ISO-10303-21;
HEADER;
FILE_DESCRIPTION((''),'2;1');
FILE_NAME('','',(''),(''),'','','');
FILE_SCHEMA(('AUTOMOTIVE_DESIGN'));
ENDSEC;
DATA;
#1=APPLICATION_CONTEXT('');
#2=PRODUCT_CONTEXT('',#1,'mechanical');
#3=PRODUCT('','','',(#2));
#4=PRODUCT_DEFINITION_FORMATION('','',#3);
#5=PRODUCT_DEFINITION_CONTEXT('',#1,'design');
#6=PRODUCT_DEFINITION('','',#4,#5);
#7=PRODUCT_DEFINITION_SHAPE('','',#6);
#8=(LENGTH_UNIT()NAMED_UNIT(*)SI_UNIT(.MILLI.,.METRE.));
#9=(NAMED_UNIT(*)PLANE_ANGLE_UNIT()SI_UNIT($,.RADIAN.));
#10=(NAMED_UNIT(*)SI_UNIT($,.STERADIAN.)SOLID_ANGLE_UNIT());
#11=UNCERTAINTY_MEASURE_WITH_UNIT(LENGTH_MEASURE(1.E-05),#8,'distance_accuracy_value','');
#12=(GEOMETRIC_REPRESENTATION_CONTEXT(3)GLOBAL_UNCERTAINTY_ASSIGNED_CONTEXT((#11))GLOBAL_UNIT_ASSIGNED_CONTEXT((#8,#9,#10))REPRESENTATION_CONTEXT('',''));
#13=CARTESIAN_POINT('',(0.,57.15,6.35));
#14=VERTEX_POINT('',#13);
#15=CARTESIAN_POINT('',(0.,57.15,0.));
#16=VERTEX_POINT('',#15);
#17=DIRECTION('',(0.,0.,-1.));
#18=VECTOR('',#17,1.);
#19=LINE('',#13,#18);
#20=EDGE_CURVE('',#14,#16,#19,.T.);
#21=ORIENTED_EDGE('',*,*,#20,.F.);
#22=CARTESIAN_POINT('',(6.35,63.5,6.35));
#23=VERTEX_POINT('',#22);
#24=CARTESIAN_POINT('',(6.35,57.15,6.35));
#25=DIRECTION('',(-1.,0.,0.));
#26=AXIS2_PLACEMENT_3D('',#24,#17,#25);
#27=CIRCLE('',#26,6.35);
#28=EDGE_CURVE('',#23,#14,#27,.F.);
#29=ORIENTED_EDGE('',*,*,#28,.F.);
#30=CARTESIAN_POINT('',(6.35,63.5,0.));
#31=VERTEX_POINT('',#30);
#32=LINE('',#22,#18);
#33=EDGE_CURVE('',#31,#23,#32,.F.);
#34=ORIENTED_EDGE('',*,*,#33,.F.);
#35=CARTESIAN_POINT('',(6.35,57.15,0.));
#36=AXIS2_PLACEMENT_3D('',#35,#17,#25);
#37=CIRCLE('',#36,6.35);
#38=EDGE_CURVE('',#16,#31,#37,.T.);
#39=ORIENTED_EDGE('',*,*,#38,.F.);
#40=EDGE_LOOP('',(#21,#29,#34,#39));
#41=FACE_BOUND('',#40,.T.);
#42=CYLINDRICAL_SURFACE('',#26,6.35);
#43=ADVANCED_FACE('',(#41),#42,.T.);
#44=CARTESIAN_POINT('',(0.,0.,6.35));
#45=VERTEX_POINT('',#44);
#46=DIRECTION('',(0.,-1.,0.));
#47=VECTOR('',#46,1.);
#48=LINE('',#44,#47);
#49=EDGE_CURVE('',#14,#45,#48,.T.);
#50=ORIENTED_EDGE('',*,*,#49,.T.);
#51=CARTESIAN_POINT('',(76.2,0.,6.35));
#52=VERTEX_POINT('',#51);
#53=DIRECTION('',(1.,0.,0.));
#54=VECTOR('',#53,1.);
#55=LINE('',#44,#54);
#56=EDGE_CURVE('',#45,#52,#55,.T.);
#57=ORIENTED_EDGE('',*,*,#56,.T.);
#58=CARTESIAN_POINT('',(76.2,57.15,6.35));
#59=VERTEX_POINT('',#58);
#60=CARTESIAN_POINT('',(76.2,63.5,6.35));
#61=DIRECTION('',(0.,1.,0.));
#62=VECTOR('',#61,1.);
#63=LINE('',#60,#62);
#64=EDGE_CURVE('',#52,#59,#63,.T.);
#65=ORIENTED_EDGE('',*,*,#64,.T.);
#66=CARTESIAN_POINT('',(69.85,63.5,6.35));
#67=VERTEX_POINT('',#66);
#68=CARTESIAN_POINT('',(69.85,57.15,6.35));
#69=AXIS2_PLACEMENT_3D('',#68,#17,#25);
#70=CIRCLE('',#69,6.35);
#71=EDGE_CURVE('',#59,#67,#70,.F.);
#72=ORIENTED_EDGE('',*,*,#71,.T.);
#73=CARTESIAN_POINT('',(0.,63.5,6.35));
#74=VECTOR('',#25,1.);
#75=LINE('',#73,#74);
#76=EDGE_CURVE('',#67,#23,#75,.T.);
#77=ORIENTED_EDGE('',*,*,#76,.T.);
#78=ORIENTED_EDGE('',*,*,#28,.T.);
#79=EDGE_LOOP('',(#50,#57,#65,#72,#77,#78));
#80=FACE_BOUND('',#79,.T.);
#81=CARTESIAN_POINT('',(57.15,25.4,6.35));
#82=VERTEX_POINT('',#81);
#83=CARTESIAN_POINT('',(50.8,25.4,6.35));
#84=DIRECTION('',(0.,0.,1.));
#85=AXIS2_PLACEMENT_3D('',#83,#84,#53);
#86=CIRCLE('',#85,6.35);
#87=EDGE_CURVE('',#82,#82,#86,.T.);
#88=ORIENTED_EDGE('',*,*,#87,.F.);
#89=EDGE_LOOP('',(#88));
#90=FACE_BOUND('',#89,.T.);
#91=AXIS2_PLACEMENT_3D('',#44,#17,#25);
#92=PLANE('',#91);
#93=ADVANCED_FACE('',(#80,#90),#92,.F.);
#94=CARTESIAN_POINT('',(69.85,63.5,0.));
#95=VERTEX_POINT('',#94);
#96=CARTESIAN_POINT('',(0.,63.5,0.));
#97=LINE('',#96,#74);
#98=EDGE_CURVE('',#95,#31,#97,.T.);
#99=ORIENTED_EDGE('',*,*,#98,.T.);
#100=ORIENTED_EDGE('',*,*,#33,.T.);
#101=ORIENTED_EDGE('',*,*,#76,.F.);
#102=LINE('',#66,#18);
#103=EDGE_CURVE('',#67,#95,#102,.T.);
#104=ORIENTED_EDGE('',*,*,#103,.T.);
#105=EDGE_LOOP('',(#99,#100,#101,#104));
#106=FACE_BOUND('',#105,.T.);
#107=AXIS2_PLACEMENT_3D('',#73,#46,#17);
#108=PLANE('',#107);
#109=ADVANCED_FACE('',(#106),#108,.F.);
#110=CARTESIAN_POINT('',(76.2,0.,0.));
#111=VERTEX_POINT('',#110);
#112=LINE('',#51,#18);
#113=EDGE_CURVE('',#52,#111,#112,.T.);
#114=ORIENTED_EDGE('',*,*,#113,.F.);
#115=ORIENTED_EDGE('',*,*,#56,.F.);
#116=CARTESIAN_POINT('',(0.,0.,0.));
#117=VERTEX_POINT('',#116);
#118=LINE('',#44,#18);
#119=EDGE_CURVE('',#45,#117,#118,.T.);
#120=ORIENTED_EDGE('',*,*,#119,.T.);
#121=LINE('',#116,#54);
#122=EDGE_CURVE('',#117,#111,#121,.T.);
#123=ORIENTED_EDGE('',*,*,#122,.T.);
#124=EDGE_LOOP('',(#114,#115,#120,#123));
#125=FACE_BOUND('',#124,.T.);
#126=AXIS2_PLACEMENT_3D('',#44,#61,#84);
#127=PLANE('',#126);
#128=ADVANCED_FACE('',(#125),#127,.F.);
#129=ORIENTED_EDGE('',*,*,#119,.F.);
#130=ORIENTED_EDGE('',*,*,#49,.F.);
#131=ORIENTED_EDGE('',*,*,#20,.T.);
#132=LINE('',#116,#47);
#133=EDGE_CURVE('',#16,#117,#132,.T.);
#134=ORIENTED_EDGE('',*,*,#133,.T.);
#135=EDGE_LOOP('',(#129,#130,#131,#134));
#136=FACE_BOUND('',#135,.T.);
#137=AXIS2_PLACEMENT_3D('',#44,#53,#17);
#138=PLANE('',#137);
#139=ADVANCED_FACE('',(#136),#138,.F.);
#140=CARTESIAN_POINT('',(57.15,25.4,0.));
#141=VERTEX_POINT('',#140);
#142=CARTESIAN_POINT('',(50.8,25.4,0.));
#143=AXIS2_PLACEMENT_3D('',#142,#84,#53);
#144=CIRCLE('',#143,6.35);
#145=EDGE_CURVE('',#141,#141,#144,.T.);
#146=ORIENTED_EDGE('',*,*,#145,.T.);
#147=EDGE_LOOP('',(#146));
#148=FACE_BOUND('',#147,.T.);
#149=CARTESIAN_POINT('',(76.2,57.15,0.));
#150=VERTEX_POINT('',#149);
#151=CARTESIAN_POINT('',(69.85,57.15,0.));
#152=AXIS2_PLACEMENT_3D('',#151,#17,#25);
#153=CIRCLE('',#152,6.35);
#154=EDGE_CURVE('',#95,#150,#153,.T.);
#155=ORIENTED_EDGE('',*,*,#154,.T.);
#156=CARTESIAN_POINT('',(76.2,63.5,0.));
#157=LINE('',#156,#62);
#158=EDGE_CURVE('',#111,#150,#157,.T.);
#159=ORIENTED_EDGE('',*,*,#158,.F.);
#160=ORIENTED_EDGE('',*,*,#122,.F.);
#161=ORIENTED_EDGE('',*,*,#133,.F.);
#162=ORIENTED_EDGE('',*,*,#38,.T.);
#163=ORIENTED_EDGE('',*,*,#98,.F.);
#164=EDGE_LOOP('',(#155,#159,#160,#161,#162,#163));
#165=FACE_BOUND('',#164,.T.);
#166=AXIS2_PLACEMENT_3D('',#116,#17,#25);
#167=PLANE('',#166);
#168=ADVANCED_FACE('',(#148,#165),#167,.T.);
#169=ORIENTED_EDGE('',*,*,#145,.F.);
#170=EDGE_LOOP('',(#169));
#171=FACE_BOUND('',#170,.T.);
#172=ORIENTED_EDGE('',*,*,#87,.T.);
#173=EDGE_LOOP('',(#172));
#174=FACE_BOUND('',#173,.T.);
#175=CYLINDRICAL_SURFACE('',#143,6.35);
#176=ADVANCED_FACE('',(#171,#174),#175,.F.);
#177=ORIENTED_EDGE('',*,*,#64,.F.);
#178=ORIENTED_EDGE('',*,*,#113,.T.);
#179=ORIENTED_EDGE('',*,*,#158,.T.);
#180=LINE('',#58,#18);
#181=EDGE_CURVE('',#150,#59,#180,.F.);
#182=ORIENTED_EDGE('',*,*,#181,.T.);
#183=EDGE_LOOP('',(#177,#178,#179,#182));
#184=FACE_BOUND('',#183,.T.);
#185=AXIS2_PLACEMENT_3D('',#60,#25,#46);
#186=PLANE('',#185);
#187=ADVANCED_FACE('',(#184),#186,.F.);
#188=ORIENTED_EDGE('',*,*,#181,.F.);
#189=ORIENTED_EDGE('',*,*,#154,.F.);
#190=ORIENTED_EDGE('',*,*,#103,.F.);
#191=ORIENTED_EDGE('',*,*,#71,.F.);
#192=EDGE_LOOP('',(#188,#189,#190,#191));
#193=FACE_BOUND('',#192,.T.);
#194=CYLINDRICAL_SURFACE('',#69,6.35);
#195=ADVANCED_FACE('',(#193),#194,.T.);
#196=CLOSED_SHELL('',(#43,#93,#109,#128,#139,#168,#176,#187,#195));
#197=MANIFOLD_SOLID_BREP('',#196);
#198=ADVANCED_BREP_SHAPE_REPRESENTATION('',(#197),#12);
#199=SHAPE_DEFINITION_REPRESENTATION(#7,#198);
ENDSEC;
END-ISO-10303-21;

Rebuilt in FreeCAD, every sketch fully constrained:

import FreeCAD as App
import Part
import Sketcher

V = App.Vector
Q = App.Units.Quantity


def edges_at(feature, points):
    """Names of the edges that pass closest to the given points."""
    edges = feature.Shape.Edges
    near = lambda p: min(range(len(edges)), key=lambda i: edges[i].distToShape(Part.Vertex(*p))[0])
    return sorted({f"Edge{near(p) + 1}" for p in points})


def add_polygon(sketch, points):
    """Adds a closed chain of lines whose ends are joined by coincident constraints."""
    first, n = sketch.GeometryCount, len(points)
    for a, b in zip(points, points[1:] + points[:1]):
        sketch.addGeometry(Part.LineSegment(App.Vector(*a, 0), App.Vector(*b, 0)), False)
    for i in range(n):
        sketch.addConstraint(Sketcher.Constraint("Coincident", first + i, 2, first + (i + 1) % n, 1))

doc = App.newDocument("Part")
body = doc.addObject("PartDesign::Body", "Body")

# Sketch on XY plane
sketch1 = doc.addObject("Sketcher::SketchObject", "Sketch")
body.addObject(sketch1)
sketch1.AttachmentSupport = (doc.XY_Plane, [""])
sketch1.MapMode = "FlatFace"
add_polygon(sketch1, [(0, 64), (0, 0), (76, 0), (76, 64)])  # lines 0-3
sketch1.addConstraint([
    Sketcher.Constraint("Vertical", 0),
    Sketcher.Constraint("Horizontal", 1),
    Sketcher.Constraint("Vertical", 2),
    Sketcher.Constraint("Horizontal", 3),
    Sketcher.Constraint("Coincident", 0, 2, -1, 1),
    Sketcher.Constraint("DistanceX", 1, 1, 1, 2, Q("3 in")),
    Sketcher.Constraint("DistanceY", 0, 2, 0, 1, Q("2.5 in")),
])
pad1 = doc.addObject("PartDesign::Pad", "Pad")
body.addObject(pad1)
pad1.Profile = sketch1
pad1.Length = Q("0.25 in")
doc.recompute()

fillet = doc.addObject("PartDesign::Fillet", "Fillet")
body.addObject(fillet)
fillet.Base = (pad1, edges_at(pad1, [(0, 63.5, 3.175)]))
fillet.Radius = Q("0.25 in")
doc.recompute()

fillet2 = doc.addObject("PartDesign::Fillet", "Fillet001")
body.addObject(fillet2)
fillet2.Base = (fillet, edges_at(fillet, [(76.2, 63.5, 3.175)]))
fillet2.Radius = Q("0.25 in")

# Sketch on XY plane
sketch2 = doc.addObject("Sketcher::SketchObject", "Sketch001")
body.addObject(sketch2)
sketch2.AttachmentSupport = (doc.XY_Plane, [""])
sketch2.MapMode = "FlatFace"
sketch2.AttachmentOffset = App.Placement(V(0, 0, 0.25 * 25.4), App.Rotation())
sketch2.addGeometry(Part.Circle(V(51, 25, 0), V(0, 0, 1), 6), False)
sketch2.addConstraint([
    Sketcher.Constraint("Diameter", 0, Q("0.5 in")),
    Sketcher.Constraint("DistanceX", -1, 1, 0, 3, Q("2 in")),
    Sketcher.Constraint("DistanceY", -1, 1, 0, 3, Q("1 in")),
])
pocket1 = doc.addObject("PartDesign::Pocket", "Pocket")
body.addObject(pocket1)
pocket1.Profile = sketch2
pocket1.Type = "ThroughAll"

doc.recompute()
